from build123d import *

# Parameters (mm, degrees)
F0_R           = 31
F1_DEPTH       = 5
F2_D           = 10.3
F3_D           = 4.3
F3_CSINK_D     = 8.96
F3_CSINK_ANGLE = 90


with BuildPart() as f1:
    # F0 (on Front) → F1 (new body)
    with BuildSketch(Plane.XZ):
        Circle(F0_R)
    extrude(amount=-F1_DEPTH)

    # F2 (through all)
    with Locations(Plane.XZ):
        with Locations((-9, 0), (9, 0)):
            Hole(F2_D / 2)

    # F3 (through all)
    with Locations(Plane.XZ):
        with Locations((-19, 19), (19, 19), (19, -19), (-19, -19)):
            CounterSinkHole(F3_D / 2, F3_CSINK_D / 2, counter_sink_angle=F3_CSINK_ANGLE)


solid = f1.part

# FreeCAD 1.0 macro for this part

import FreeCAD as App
import Part
import Sketcher
Q = App.Units.Quantity

doc = App.newDocument("Part")
body = doc.addObject("PartDesign::Body", "Body")

# Sketch on XZ plane
sketch1 = body.newObject("Sketcher::SketchObject", "Sketch")
sketch1.AttachmentSupport = (doc.getObject("XZ_Plane"), [""])
sketch1.MapMode = "FlatFace"
sketch1.addGeometry(Part.Circle(App.Vector(0, 0, 0), App.Vector(0, 0, 1), 31), False)
sketch1.addConstraint(Sketcher.Constraint("Coincident", 0, 3, -1, 1))
sketch1.addConstraint(Sketcher.Constraint("Diameter", 0, Q("62 mm")))
pad1 = body.newObject("PartDesign::Pad", "Pad")
pad1.Profile = sketch1
pad1.Length = 5
pad1.Reversed = True

# Sketch on XZ plane
sketch2 = body.newObject("Sketcher::SketchObject", "Sketch001")
sketch2.AttachmentSupport = (doc.getObject("XZ_Plane"), [""])
sketch2.MapMode = "FlatFace"
sketch2.addGeometry(Part.Circle(App.Vector(-9, 0, 0), App.Vector(0, 0, 1), 5.15), False)
sketch2.addGeometry(Part.Circle(App.Vector(9, 0, 0), App.Vector(0, 0, 1), 5.15), False)
sketch2.addConstraint(Sketcher.Constraint("Equal", 0, 1))
sketch2.addConstraint(Sketcher.Constraint("Symmetric", 0, 3, 1, 3, -1, 1))
sketch2.addConstraint(Sketcher.Constraint("PointOnObject", 0, 3, -1))
sketch2.addConstraint(Sketcher.Constraint("Diameter", 0, Q("10.3 mm")))
sketch2.addConstraint(Sketcher.Constraint("DistanceX", 0, 3, -1, 1, Q("9 mm")))
doc.recompute()
hole = body.newObject("PartDesign::Hole", "Hole")
hole.Profile = sketch2
hole.ThreadType = "None"
hole.Diameter = 10.3
hole.DepthType = "ThroughAll"

# Sketch on XZ plane
sketch3 = body.newObject("Sketcher::SketchObject", "Sketch002")
sketch3.AttachmentSupport = (doc.getObject("XZ_Plane"), [""])
sketch3.MapMode = "FlatFace"
sketch3.addGeometry(Part.Circle(App.Vector(-19, 19, 0), App.Vector(0, 0, 1), 2.15), False)
sketch3.addGeometry(Part.Circle(App.Vector(19, 19, 0), App.Vector(0, 0, 1), 2.15), False)
sketch3.addGeometry(Part.Circle(App.Vector(19, -19, 0), App.Vector(0, 0, 1), 2.15), False)
sketch3.addGeometry(Part.Circle(App.Vector(-19, -19, 0), App.Vector(0, 0, 1), 2.15), False)
sketch3.addConstraint(Sketcher.Constraint("Equal", 0, 1))
sketch3.addConstraint(Sketcher.Constraint("Equal", 1, 2))
sketch3.addConstraint(Sketcher.Constraint("Equal", 2, 3))
sketch3.addConstraint(Sketcher.Constraint("Symmetric", 0, 3, 2, 3, -1, 1))
sketch3.addConstraint(Sketcher.Constraint("Symmetric", 1, 3, 3, 3, -1, 1))
sketch3.addConstraint(Sketcher.Constraint("Symmetric", 0, 3, 1, 3, -2))
sketch3.addConstraint(Sketcher.Constraint("Diameter", 0, Q("4.3 mm")))
sketch3.addConstraint(Sketcher.Constraint("DistanceX", 0, 3, -1, 1, Q("19 mm")))
sketch3.addConstraint(Sketcher.Constraint("DistanceY", -1, 1, 0, 3, Q("19 mm")))
doc.recompute()
hole2 = body.newObject("PartDesign::Hole", "Hole001")
hole2.Profile = sketch3
hole2.ThreadType = "None"
hole2.Diameter = 4.3
hole2.DepthType = "ThroughAll"
hole2.HoleCutType = "Countersink"
hole2.HoleCutDiameter = 8.96
hole2.HoleCutCountersinkAngle = 90

doc.recompute()
